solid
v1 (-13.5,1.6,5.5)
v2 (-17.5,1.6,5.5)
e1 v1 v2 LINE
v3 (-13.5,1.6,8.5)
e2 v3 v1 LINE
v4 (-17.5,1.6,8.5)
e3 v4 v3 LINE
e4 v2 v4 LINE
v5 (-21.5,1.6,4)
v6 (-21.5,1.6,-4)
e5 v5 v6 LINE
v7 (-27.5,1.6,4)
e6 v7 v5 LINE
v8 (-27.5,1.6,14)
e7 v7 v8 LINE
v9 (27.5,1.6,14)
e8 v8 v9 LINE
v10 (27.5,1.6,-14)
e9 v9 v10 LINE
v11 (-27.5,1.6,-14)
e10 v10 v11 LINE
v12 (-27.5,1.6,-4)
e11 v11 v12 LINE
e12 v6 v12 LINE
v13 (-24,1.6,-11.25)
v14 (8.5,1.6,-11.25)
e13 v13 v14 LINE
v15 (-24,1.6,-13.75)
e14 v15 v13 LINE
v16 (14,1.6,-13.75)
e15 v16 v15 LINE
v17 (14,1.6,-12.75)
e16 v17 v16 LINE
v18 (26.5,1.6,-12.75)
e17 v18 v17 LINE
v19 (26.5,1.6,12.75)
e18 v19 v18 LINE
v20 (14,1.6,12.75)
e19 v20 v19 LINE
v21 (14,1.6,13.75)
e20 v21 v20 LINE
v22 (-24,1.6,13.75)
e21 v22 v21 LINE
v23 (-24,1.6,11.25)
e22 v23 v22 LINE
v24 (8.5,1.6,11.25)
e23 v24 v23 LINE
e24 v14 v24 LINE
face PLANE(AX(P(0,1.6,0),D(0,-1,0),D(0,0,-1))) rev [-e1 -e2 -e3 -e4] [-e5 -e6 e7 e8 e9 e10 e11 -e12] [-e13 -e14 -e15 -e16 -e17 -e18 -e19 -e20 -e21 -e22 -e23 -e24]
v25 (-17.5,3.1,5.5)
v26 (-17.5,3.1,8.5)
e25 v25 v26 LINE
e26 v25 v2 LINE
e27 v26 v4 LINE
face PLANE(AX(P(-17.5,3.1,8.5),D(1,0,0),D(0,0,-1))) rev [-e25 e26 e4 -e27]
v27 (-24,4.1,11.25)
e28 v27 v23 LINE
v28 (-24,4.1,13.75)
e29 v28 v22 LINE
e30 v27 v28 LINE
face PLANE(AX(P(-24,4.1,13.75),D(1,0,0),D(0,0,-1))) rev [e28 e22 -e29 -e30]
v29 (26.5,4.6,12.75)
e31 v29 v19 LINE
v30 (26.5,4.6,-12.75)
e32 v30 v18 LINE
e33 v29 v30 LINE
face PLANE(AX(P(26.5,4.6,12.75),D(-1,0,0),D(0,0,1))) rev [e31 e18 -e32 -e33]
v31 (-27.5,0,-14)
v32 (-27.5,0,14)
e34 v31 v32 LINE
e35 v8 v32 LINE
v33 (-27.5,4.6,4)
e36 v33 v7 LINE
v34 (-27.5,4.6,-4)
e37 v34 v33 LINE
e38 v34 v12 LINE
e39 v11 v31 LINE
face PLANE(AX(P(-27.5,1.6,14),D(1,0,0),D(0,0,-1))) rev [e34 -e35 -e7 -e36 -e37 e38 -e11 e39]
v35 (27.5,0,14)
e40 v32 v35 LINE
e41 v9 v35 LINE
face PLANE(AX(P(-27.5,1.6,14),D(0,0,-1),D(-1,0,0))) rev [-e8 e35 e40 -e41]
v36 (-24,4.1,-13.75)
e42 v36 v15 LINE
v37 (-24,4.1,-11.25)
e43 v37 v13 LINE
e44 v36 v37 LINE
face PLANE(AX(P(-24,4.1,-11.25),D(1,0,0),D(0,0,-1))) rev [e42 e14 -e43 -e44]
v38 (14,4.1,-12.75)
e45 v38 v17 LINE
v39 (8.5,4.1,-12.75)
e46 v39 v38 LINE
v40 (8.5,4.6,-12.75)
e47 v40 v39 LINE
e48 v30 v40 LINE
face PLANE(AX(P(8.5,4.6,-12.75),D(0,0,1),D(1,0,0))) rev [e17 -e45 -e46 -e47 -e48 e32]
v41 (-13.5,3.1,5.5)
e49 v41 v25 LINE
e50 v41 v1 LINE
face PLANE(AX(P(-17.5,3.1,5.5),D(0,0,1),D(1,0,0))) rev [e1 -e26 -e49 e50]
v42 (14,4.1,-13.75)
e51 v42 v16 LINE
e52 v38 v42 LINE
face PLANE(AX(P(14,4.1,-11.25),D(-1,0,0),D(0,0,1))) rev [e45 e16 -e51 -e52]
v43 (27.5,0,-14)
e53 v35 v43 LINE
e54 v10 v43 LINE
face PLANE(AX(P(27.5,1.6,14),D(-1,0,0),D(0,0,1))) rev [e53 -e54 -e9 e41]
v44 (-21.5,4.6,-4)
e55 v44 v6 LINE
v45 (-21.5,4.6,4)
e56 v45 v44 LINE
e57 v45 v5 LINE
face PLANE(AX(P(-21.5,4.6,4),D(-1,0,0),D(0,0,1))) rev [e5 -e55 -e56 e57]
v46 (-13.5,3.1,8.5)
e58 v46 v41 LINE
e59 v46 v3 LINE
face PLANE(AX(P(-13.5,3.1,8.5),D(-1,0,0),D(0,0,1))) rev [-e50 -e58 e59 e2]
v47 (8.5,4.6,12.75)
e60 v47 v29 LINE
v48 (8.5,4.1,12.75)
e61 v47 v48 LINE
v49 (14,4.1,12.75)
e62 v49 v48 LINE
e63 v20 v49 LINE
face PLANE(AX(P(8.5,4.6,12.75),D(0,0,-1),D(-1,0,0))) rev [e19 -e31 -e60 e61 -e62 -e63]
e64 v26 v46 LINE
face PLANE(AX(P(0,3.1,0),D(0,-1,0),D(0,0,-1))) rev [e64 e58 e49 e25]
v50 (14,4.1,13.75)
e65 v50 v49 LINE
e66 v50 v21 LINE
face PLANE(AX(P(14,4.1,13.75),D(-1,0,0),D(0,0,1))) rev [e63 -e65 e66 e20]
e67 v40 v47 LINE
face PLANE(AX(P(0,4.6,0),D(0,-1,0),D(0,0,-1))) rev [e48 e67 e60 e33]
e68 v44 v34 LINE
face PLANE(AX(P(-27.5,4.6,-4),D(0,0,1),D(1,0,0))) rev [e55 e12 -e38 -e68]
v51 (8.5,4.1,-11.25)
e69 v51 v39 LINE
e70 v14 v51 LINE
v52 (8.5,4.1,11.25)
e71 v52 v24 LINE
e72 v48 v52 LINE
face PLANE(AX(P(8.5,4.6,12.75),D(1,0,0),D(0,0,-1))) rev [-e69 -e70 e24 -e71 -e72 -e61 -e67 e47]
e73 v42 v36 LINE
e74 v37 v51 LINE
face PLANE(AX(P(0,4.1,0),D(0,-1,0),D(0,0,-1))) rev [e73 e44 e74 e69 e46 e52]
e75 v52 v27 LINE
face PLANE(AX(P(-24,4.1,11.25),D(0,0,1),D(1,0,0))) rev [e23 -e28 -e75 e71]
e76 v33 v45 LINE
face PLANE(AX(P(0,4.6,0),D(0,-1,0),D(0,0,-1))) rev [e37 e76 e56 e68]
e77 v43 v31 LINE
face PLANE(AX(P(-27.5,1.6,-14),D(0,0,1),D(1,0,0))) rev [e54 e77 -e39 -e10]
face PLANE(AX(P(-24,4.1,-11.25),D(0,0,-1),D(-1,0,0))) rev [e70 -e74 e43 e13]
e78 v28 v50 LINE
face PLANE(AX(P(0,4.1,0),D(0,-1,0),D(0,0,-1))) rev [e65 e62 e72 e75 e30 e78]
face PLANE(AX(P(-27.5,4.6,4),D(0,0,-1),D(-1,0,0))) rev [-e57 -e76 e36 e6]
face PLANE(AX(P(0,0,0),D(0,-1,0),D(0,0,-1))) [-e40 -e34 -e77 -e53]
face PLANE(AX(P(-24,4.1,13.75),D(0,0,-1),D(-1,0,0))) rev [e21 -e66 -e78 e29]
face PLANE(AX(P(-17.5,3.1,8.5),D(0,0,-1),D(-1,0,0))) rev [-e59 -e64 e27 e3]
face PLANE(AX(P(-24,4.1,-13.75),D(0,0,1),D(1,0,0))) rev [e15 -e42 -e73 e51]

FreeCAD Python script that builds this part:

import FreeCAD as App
import Part
import Sketcher

doc = App.newDocument("Part")
body = doc.addObject("PartDesign::Body", "Body")

# Sketch on XZ plane
sketch1 = body.newObject("Sketcher::SketchObject", "Sketch")
sketch1.AttachmentSupport = (doc.getObject("XZ_Plane"), [""])
sketch1.MapMode = "FlatFace"
sketch1.addGeometry([
    Part.LineSegment(App.Vector(-27.5, -14, 0), App.Vector(-27.5, 14, 0)),
    Part.LineSegment(App.Vector(-27.5, 14, 0), App.Vector(27.5, 14, 0)),
    Part.LineSegment(App.Vector(27.5, 14, 0), App.Vector(27.5, -14, 0)),
    Part.LineSegment(App.Vector(27.5, -14, 0), App.Vector(-27.5, -14, 0)),
], False)
sketch1.addConstraint([
    Sketcher.Constraint("Coincident", 0, 2, 1, 1),
    Sketcher.Constraint("Coincident", 1, 2, 2, 1),
    Sketcher.Constraint("Coincident", 2, 2, 3, 1),
    Sketcher.Constraint("Coincident", 3, 2, 0, 1),
    Sketcher.Constraint("Vertical", 0),
    Sketcher.Constraint("Horizontal", 1),
    Sketcher.Constraint("Vertical", 2),
    Sketcher.Constraint("Horizontal", 3),
    Sketcher.Constraint("Symmetric", 0, 2, 2, 2, -1, 1),
    Sketcher.Constraint("DistanceX", 1, 1, 1, 2, 55.0),
    Sketcher.Constraint("DistanceY", 0, 1, 0, 2, 28.0),
])
pad1 = body.newObject("PartDesign::Pad", "Pad")
pad1.Profile = sketch1
pad1.Length = 1.6
pad1.Reversed = True

# Sketch on XZ plane
sketch2 = body.newObject("Sketcher::SketchObject", "Sketch001")
sketch2.AttachmentSupport = (doc.getObject("XZ_Plane"), [""])
sketch2.MapMode = "FlatFace"
sketch2.AttachmentOffset = App.Placement(App.Vector(0, 0, -1.6), App.Rotation())
sketch2.addGeometry([
    Part.LineSegment(App.Vector(8.5, -12.75, 0), App.Vector(8.5, 12.75, 0)),
    Part.LineSegment(App.Vector(8.5, 12.75, 0), App.Vector(26.5, 12.75, 0)),
    Part.LineSegment(App.Vector(26.5, 12.75, 0), App.Vector(26.5, -12.75, 0)),
    Part.LineSegment(App.Vector(26.5, -12.75, 0), App.Vector(8.5, -12.75, 0)),
], False)
sketch2.addConstraint([
    Sketcher.Constraint("Coincident", 0, 2, 1, 1),
    Sketcher.Constraint("Coincident", 1, 2, 2, 1),
    Sketcher.Constraint("Coincident", 2, 2, 3, 1),
    Sketcher.Constraint("Coincident", 3, 2, 0, 1),
    Sketcher.Constraint("Vertical", 0),
    Sketcher.Constraint("Horizontal", 1),
    Sketcher.Constraint("Vertical", 2),
    Sketcher.Constraint("Horizontal", 3),
    Sketcher.Constraint("DistanceX", 1, 1, 1, 2, 18.0),
    Sketcher.Constraint("DistanceY", 0, 1, 0, 2, 25.5),
    Sketcher.Constraint("DistanceX", -1, 1, 0, 2, 8.5),
    Sketcher.Constraint("DistanceY", -1, 1, 0, 2, 12.75),
])
pad2 = body.newObject("PartDesign::Pad", "Pad001")
pad2.Profile = sketch2
pad2.Length = 3
pad2.Reversed = True

# Sketch on XZ plane
sketch3 = body.newObject("Sketcher::SketchObject", "Sketch002")
sketch3.AttachmentSupport = (doc.getObject("XZ_Plane"), [""])
sketch3.MapMode = "FlatFace"
sketch3.AttachmentOffset = App.Placement(App.Vector(0, 0, -1.6), App.Rotation())
sketch3.addGeometry([
    Part.LineSegment(App.Vector(-27.5, -4, 0), App.Vector(-27.5, 4, 0)),
    Part.LineSegment(App.Vector(-27.5, 4, 0), App.Vector(-21.5, 4, 0)),
    Part.LineSegment(App.Vector(-21.5, 4, 0), App.Vector(-21.5, -4, 0)),
    Part.LineSegment(App.Vector(-21.5, -4, 0), App.Vector(-27.5, -4, 0)),
], False)
sketch3.addConstraint([
    Sketcher.Constraint("Coincident", 0, 2, 1, 1),
    Sketcher.Constraint("Coincident", 1, 2, 2, 1),
    Sketcher.Constraint("Coincident", 2, 2, 3, 1),
    Sketcher.Constraint("Coincident", 3, 2, 0, 1),
    Sketcher.Constraint("Vertical", 0),
    Sketcher.Constraint("Horizontal", 1),
    Sketcher.Constraint("Vertical", 2),
    Sketcher.Constraint("Horizontal", 3),
    Sketcher.Constraint("DistanceX", 1, 1, 1, 2, 6.0),
    Sketcher.Constraint("DistanceY", 0, 1, 0, 2, 8.0),
    Sketcher.Constraint("DistanceY", -1, 1, 0, 2, 4.0),
    Sketcher.Constraint("DistanceX", 0, 2, -1, 1, 27.5),
])
pad3 = body.newObject("PartDesign::Pad", "Pad002")
pad3.Profile = sketch3
pad3.Length = 3
pad3.Reversed = True

# Sketch on XZ plane
sketch4 = body.newObject("Sketcher::SketchObject", "Sketch003")
sketch4.AttachmentSupport = (doc.getObject("XZ_Plane"), [""])
sketch4.MapMode = "FlatFace"
sketch4.AttachmentOffset = App.Placement(App.Vector(0, 0, -1.6), App.Rotation())
sketch4.addGeometry([
    Part.LineSegment(App.Vector(-24, 11.25, 0), App.Vector(-24, 13.75, 0)),
    Part.LineSegment(App.Vector(-24, 13.75, 0), App.Vector(14, 13.75, 0)),
    Part.LineSegment(App.Vector(14, 13.75, 0), App.Vector(14, 11.25, 0)),
    Part.LineSegment(App.Vector(14, 11.25, 0), App.Vector(-24, 11.25, 0)),
], False)
sketch4.addConstraint([
    Sketcher.Constraint("Coincident", 0, 2, 1, 1),
    Sketcher.Constraint("Coincident", 1, 2, 2, 1),
    Sketcher.Constraint("Coincident", 2, 2, 3, 1),
    Sketcher.Constraint("Coincident", 3, 2, 0, 1),
    Sketcher.Constraint("Vertical", 0),
    Sketcher.Constraint("Horizontal", 1),
    Sketcher.Constraint("Vertical", 2),
    Sketcher.Constraint("Horizontal", 3),
    Sketcher.Constraint("DistanceX", 1, 1, 1, 2, 38.0),
    Sketcher.Constraint("DistanceY", 0, 1, 0, 2, 2.5),
    Sketcher.Constraint("DistanceX", 0, 2, -1, 1, 24.0),
    Sketcher.Constraint("DistanceY", -1, 1, 0, 2, 13.75),
])
pad4 = body.newObject("PartDesign::Pad", "Pad003")
pad4.Profile = sketch4
pad4.Length = 2.5
pad4.Reversed = True

# Sketch on XZ plane
sketch5 = body.newObject("Sketcher::SketchObject", "Sketch004")
sketch5.AttachmentSupport = (doc.getObject("XZ_Plane"), [""])
sketch5.MapMode = "FlatFace"
sketch5.AttachmentOffset = App.Placement(App.Vector(0, 0, -1.6), App.Rotation())
sketch5.addGeometry([
    Part.LineSegment(App.Vector(-24, -13.75, 0), App.Vector(-24, -11.25, 0)),
    Part.LineSegment(App.Vector(-24, -11.25, 0), App.Vector(14, -11.25, 0)),
    Part.LineSegment(App.Vector(14, -11.25, 0), App.Vector(14, -13.75, 0)),
    Part.LineSegment(App.Vector(14, -13.75, 0), App.Vector(-24, -13.75, 0)),
], False)
sketch5.addConstraint([
    Sketcher.Constraint("Coincident", 0, 2, 1, 1),
    Sketcher.Constraint("Coincident", 1, 2, 2, 1),
    Sketcher.Constraint("Coincident", 2, 2, 3, 1),
    Sketcher.Constraint("Coincident", 3, 2, 0, 1),
    Sketcher.Constraint("Vertical", 0),
    Sketcher.Constraint("Horizontal", 1),
    Sketcher.Constraint("Vertical", 2),
    Sketcher.Constraint("Horizontal", 3),
    Sketcher.Constraint("DistanceX", 1, 1, 1, 2, 38.0),
    Sketcher.Constraint("DistanceY", 0, 1, 0, 2, 2.5),
    Sketcher.Constraint("DistanceX", 0, 2, -1, 1, 24.0),
    Sketcher.Constraint("DistanceY", 0, 2, -1, 1, 11.25),
])
pad5 = body.newObject("PartDesign::Pad", "Pad004")
pad5.Profile = sketch5
pad5.Length = 2.5
pad5.Reversed = True

# Sketch on XZ plane
sketch6 = body.newObject("Sketcher::SketchObject", "Sketch005")
sketch6.AttachmentSupport = (doc.getObject("XZ_Plane"), [""])
sketch6.MapMode = "FlatFace"
sketch6.AttachmentOffset = App.Placement(App.Vector(0, 0, -1.6), App.Rotation())
sketch6.addGeometry([
    Part.LineSegment(App.Vector(-17.5, 5.5, 0), App.Vector(-17.5, 8.5, 0)),
    Part.LineSegment(App.Vector(-17.5, 8.5, 0), App.Vector(-13.5, 8.5, 0)),
    Part.LineSegment(App.Vector(-13.5, 8.5, 0), App.Vector(-13.5, 5.5, 0)),
    Part.LineSegment(App.Vector(-13.5, 5.5, 0), App.Vector(-17.5, 5.5, 0)),
], False)
sketch6.addConstraint([
    Sketcher.Constraint("Coincident", 0, 2, 1, 1),
    Sketcher.Constraint("Coincident", 1, 2, 2, 1),
    Sketcher.Constraint("Coincident", 2, 2, 3, 1),
    Sketcher.Constraint("Coincident", 3, 2, 0, 1),
    Sketcher.Constraint("Vertical", 0),
    Sketcher.Constraint("Horizontal", 1),
    Sketcher.Constraint("Vertical", 2),
    Sketcher.Constraint("Horizontal", 3),
    Sketcher.Constraint("DistanceX", 1, 1, 1, 2, 4.0),
    Sketcher.Constraint("DistanceY", 0, 1, 0, 2, 3.0),
    Sketcher.Constraint("DistanceX", 0, 2, -1, 1, 17.5),
    Sketcher.Constraint("DistanceY", -1, 1, 0, 2, 8.5),
])
pad6 = body.newObject("PartDesign::Pad", "Pad005")
pad6.Profile = sketch6
pad6.Length = 1.5
pad6.Reversed = True

doc.recompute()
